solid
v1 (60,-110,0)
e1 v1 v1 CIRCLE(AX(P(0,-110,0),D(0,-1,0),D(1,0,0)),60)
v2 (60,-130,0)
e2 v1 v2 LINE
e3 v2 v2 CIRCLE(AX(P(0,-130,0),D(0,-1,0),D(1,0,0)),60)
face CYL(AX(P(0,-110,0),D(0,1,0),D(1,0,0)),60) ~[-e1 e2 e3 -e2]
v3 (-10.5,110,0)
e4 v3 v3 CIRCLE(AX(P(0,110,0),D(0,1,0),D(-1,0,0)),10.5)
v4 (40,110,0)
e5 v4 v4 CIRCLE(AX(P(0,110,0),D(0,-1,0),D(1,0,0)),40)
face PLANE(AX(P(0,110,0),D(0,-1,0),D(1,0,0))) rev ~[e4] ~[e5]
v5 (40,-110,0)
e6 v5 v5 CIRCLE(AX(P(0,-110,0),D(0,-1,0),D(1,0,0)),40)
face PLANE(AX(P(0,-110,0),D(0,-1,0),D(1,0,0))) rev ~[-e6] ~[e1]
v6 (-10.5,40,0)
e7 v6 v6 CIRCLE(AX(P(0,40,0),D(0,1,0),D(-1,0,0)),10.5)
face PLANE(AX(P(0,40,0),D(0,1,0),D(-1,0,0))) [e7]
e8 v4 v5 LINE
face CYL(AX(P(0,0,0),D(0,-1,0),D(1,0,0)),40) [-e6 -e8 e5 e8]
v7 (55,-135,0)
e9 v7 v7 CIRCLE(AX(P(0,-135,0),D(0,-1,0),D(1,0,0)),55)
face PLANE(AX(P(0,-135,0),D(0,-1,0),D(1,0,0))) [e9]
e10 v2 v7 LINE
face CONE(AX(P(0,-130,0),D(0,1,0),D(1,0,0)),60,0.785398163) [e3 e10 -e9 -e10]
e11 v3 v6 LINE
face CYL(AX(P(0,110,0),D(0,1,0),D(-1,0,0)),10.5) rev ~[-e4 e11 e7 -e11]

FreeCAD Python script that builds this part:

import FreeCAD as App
import Part
import Sketcher
from FreeCAD import Vector
Q = App.Units.Quantity


def edges_at(feature, points):
    """Names of the edges that pass closest to the given points."""
    edges = feature.Shape.Edges
    near = lambda p: min(range(len(edges)), key=lambda i: edges[i].distToShape(Part.Vertex(*p))[0])
    return sorted({f"Edge{near(p) + 1}" for p in points})

doc = App.newDocument("Part")
body = doc.addObject("PartDesign::Body", "Body")

sketch1 = body.newObject("Sketcher::SketchObject", "Sketch")
sketch1.AttachmentSupport = (doc.getObject("XZ_Plane"), [""])
sketch1.MapMode = "FlatFace"
sketch1.addGeometry(Part.Circle(Vector(0, 0, 0), Vector(0, 0, 1), 40), False)
sketch1.addConstraint(Sketcher.Constraint("Coincident", 0, 3, -1, 1))
sketch1.addConstraint(Sketcher.Constraint("Diameter", 0, Q("80 mm")))
pad1 = body.newObject("PartDesign::Pad", "Pad")
pad1.Profile = sketch1
pad1.Length = 220
pad1.Midplane = True

sketch2 = body.newObject("Sketcher::SketchObject", "Sketch001")
sketch2.AttachmentSupport = (doc.getObject("XZ_Plane"), [""])
sketch2.MapMode = "FlatFace"
sketch2.AttachmentOffset = App.Placement(Vector(0, 0, 110), App.Rotation())
sketch2.addGeometry(Part.Circle(Vector(0, 0, 0), Vector(0, 0, 1), 60), False)
sketch2.addConstraint(Sketcher.Constraint("Coincident", 0, 3, -1, 1))
sketch2.addConstraint(Sketcher.Constraint("Diameter", 0, Q("120 mm")))
pad2 = body.newObject("PartDesign::Pad", "Pad001")
pad2.Profile = sketch2
pad2.Length = 25
doc.recompute()

chamfer = body.newObject("PartDesign::Chamfer", "Chamfer")
chamfer.Base = (pad2, edges_at(pad2, [(-60, -135, 0)]))
chamfer.Size = 5

sketch3 = body.newObject("Sketcher::SketchObject", "Sketch002")
sketch3.AttachmentSupport = (doc.getObject("XZ_Plane"), [""])
sketch3.MapMode = "FlatFace"
sketch3.AttachmentOffset = App.Placement(Vector(0, 0, -110), App.Rotation())
sketch3.addGeometry(Part.Circle(Vector(0, 0, 0), Vector(0, 0, 1), 10), False)
sketch3.addConstraint(Sketcher.Constraint("Coincident", 0, 3, -1, 1))
sketch3.addConstraint(Sketcher.Constraint("Diameter", 0, Q("21 mm")))
pocket1 = body.newObject("PartDesign::Pocket", "Pocket")
pocket1.Profile = sketch3
pocket1.Length = 70
pocket1.Reversed = True

doc.recompute()
